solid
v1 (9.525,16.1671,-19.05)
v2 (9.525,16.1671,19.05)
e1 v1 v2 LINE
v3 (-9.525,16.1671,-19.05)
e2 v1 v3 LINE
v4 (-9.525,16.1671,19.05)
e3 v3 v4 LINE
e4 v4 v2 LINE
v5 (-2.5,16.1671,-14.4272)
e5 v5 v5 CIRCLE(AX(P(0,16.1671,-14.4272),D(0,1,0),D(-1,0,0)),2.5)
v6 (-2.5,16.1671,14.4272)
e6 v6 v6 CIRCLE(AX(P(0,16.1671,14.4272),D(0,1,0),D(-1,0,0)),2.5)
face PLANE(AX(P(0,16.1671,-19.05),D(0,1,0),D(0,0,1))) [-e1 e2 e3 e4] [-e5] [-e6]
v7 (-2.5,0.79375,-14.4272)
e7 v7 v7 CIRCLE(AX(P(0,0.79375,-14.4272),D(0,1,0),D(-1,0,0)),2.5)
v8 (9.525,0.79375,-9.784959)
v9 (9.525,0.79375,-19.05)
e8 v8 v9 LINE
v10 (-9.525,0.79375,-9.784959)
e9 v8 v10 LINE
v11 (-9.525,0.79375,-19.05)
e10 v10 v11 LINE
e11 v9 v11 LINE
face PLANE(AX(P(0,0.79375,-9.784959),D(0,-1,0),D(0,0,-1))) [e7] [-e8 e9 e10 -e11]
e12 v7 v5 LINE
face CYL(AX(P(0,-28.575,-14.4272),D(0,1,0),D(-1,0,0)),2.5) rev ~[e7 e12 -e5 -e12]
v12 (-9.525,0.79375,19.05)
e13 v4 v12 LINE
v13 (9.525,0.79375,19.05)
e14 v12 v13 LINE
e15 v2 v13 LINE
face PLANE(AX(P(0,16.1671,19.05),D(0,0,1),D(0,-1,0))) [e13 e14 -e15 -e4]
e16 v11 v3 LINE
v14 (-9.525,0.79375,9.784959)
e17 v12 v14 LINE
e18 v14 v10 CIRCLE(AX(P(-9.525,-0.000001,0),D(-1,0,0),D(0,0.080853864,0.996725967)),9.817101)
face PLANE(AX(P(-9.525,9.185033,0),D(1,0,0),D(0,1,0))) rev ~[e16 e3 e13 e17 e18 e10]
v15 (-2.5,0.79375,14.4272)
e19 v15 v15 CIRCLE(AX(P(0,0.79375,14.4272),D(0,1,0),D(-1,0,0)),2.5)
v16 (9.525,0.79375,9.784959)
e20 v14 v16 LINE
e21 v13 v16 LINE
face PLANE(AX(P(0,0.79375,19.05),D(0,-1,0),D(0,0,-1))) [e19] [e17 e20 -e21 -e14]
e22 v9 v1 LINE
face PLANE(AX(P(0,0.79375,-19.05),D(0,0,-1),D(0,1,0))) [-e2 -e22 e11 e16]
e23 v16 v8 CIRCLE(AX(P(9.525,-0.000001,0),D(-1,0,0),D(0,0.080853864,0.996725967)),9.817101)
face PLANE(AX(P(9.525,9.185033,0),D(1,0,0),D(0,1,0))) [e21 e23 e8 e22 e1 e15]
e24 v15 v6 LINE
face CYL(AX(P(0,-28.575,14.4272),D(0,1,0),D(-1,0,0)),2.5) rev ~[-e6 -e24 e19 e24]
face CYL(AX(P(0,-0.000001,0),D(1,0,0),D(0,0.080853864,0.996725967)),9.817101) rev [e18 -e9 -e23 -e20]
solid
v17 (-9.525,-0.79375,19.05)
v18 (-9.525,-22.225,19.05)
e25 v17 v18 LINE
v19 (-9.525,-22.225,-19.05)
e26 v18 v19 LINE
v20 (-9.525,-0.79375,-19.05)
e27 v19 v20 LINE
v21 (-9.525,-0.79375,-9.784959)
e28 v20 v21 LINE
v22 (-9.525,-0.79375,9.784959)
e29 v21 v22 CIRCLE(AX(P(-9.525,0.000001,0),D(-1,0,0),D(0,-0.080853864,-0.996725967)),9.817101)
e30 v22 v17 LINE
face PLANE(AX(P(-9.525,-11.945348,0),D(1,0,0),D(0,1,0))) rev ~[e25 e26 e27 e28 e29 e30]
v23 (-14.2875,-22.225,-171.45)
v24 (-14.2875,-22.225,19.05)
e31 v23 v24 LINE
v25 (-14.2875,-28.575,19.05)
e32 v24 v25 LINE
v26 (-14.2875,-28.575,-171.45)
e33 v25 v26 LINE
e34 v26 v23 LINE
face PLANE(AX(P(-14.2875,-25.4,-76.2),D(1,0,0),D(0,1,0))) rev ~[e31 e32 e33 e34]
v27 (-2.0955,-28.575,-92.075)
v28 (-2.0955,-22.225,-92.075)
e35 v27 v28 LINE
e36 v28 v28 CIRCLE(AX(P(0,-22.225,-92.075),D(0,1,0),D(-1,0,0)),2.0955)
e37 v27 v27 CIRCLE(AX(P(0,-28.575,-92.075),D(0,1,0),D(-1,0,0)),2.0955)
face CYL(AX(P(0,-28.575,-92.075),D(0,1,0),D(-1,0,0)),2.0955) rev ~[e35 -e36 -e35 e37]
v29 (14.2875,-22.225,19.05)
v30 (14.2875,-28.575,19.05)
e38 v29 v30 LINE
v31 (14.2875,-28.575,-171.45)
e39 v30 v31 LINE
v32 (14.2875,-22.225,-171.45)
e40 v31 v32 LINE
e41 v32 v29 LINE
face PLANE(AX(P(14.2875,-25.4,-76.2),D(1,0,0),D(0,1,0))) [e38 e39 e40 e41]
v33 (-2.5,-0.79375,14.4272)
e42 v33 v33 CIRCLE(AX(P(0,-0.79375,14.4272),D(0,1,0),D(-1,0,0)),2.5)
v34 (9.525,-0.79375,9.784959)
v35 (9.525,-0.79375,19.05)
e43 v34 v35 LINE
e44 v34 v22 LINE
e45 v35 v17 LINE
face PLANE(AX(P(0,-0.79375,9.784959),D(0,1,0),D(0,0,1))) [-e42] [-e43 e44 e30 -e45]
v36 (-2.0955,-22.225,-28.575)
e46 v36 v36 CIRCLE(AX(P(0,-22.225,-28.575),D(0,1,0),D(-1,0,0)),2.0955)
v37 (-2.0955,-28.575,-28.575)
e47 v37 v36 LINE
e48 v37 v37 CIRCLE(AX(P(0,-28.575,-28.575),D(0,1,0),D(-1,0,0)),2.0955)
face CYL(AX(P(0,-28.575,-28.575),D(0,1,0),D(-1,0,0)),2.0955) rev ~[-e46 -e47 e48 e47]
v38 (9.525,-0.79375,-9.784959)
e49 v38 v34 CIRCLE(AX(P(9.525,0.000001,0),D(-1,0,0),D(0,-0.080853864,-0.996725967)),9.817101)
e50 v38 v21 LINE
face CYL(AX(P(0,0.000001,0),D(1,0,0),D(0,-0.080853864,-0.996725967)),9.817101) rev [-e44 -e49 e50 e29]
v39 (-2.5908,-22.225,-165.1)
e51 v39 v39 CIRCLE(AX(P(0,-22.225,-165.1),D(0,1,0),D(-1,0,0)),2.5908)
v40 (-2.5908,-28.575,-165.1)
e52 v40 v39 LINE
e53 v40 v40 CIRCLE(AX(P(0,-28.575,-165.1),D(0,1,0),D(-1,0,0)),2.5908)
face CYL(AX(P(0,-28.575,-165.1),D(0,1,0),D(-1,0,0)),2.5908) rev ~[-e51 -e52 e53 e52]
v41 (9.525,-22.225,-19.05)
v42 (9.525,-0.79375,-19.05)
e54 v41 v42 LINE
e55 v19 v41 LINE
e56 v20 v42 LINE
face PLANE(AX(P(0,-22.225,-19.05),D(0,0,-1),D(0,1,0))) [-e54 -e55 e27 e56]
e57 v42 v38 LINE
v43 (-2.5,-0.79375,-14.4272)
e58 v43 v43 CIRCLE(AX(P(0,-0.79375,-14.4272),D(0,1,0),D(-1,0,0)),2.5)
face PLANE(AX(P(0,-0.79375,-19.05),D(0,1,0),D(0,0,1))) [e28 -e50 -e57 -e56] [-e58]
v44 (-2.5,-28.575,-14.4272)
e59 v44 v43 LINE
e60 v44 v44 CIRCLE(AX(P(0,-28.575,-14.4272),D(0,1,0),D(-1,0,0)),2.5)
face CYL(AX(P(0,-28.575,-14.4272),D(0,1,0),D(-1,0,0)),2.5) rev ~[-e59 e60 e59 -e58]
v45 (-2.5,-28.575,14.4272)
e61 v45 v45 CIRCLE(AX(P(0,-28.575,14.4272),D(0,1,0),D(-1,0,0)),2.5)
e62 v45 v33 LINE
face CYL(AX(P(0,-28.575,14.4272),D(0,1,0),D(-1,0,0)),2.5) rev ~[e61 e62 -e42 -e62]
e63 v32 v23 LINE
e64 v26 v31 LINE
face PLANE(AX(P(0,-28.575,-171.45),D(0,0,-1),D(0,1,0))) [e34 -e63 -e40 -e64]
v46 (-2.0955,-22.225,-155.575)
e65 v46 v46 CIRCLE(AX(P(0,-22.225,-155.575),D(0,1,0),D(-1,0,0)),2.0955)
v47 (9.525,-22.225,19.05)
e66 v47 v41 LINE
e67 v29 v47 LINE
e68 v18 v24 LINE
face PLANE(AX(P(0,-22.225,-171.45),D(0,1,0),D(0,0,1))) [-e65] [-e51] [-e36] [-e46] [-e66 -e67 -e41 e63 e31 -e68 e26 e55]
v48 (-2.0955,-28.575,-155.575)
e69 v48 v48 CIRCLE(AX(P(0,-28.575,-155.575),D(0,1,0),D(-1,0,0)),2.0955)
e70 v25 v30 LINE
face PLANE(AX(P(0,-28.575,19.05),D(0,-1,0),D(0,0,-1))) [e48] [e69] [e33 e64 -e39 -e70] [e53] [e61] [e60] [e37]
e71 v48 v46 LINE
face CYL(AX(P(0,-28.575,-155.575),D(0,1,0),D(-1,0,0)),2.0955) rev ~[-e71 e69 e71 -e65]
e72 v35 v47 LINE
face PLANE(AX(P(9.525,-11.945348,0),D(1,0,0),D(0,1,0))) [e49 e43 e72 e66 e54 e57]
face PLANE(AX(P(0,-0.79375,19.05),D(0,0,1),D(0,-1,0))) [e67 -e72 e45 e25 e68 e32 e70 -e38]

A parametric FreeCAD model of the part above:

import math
import FreeCAD as App
import Part
import Sketcher

V = App.Vector
Q = App.Units.Quantity

doc = App.newDocument("Part")
body = doc.addObject("PartDesign::Body", "Body")
body.AllowCompound = True

sketch1 = doc.addObject("Sketcher::SketchObject", "Sketch")
body.addObject(sketch1)
sketch1.AttachmentSupport = (doc.YZ_Plane, [""])
sketch1.MapMode = "FlatFace"
sketch1.addGeometry([
    Part.LineSegment(V(-22, 19, 0), V(-29, 19, 0)),
    Part.LineSegment(V(-29, 19, 0), V(-29, -171, 0)),
    Part.LineSegment(V(-29, -171, 0), V(-22, -171, 0)),
    Part.LineSegment(V(-22, -171, 0), V(-22, 19, 0)),
], False)
sketch1.addConstraint([
    Sketcher.Constraint("Coincident", 0, 2, 1, 1),
    Sketcher.Constraint("Coincident", 1, 2, 2, 1),
    Sketcher.Constraint("Coincident", 2, 2, 3, 1),
    Sketcher.Constraint("Coincident", 3, 2, 0, 1),
    Sketcher.Constraint("Horizontal", 0),
    Sketcher.Constraint("Vertical", 1),
    Sketcher.Constraint("Horizontal", 2),
    Sketcher.Constraint("Vertical", 3),
    Sketcher.Constraint("DistanceY", 1, 2, 1, 1, Q("7.5 in")),
    Sketcher.Constraint("DistanceX", 0, 2, 0, 1, Q("0.25 in")),
    Sketcher.Constraint("DistanceY", -1, 1, 0, 2, Q("0.75 in")),
    Sketcher.Constraint("DistanceX", 0, 2, -1, 1, Q("1.125 in")),
])
pad1 = doc.addObject("PartDesign::Pad", "Pad")
body.addObject(pad1)
pad1.Profile = sketch1
pad1.Type = "TwoLengths"
pad1.Length = Q("0.5625 in")
pad1.Length2 = Q("0.5625 in")

sketch2 = doc.addObject("Sketcher::SketchObject", "Sketch001")
body.addObject(sketch2)
sketch2.AttachmentSupport = (doc.YZ_Plane, [""])
sketch2.MapMode = "FlatFace"
sketch2.addGeometry([
    Part.LineSegment(V(-1, 19, 0), V(-22, 19, 0)),
    Part.LineSegment(V(-22, 19, 0), V(-22, -19, 0)),
    Part.LineSegment(V(-22, -19, 0), V(-1, -19, 0)),
    Part.LineSegment(V(-1, -19, 0), V(-1, -10, 0)),
    Part.ArcOfCircle(Part.Circle(V(0, 0, 0), V(0, 0, 1), 10), math.radians(95), math.radians(265)),
    Part.LineSegment(V(-1, 10, 0), V(-1, 19, 0)),
    Part.LineSegment(V(16, -19, 0), V(16, 19, 0)),
    Part.LineSegment(V(16, 19, 0), V(1, 19, 0)),
    Part.LineSegment(V(1, 19, 0), V(1, 10, 0)),
    Part.ArcOfCircle(Part.Circle(V(0, 0, 0), V(0, 0, 1), 10), math.radians(-85), math.radians(85)),
    Part.LineSegment(V(1, -10, 0), V(1, -19, 0)),
    Part.LineSegment(V(1, -19, 0), V(16, -19, 0)),
], False)
sketch2.addConstraint([
    Sketcher.Constraint("Coincident", 0, 2, 1, 1),
    Sketcher.Constraint("Coincident", 1, 2, 2, 1),
    Sketcher.Constraint("Coincident", 2, 2, 3, 1),
    Sketcher.Constraint("Coincident", 3, 2, 4, 2),
    Sketcher.Constraint("Coincident", 4, 1, 5, 1),
    Sketcher.Constraint("Coincident", 5, 2, 0, 1),
    Sketcher.Constraint("Coincident", 6, 2, 7, 1),
    Sketcher.Constraint("Coincident", 7, 2, 8, 1),
    Sketcher.Constraint("Coincident", 8, 2, 9, 2),
    Sketcher.Constraint("Coincident", 9, 1, 10, 1),
    Sketcher.Constraint("Coincident", 10, 2, 11, 1),
    Sketcher.Constraint("Coincident", 11, 2, 6, 1),
    Sketcher.Constraint("Horizontal", 0),
    Sketcher.Constraint("Vertical", 1),
    Sketcher.Constraint("Horizontal", 2),
    Sketcher.Constraint("Vertical", 3),
    Sketcher.Constraint("Vertical", 5),
    Sketcher.Constraint("Vertical", 6),
    Sketcher.Constraint("Horizontal", 7),
    Sketcher.Constraint("Vertical", 8),
    Sketcher.Constraint("Vertical", 10),
    Sketcher.Constraint("Horizontal", 11),
    Sketcher.Constraint("Coincident", 4, 3, -1, 1),
    Sketcher.Constraint("Coincident", 9, 3, -1, 1),
    Sketcher.Constraint("Equal", 4, 9),
    Sketcher.Constraint("Symmetric", 2, 2, 7, 2, -1, 1),
    Sketcher.Constraint("Symmetric", 5, 2, 10, 2, -1, 1),
    Sketcher.Constraint("Symmetric", 5, 2, 7, 2, -2),
    Sketcher.Constraint("DistanceY", 1, 2, 1, 1, Q("1.5 in")),
    Sketcher.Constraint("Radius", 4, Q("0.3865 in")),
    Sketcher.Constraint("DistanceX", 0, 2, 0, 1, Q("0.84375 in")),
    Sketcher.Constraint("DistanceX", 0, 2, -1, 1, Q("0.875 in")),
    Sketcher.Constraint("DistanceX", -1, 1, 6, 2, Q("0.6365 in")),
])
pad2 = doc.addObject("PartDesign::Pad", "Pad001")
body.addObject(pad2)
pad2.Profile = sketch2
pad2.Type = "TwoLengths"
pad2.Length = Q("0.375 in")
pad2.Length2 = Q("0.375 in")

sketch3 = doc.addObject("Sketcher::SketchObject", "Sketch002")
body.addObject(sketch3)
sketch3.AttachmentSupport = (doc.XZ_Plane, [""])
sketch3.MapMode = "FlatFace"
sketch3.AttachmentOffset = App.Placement(V(0, 0, 1.125 * 25.4), App.Rotation())
sketch3.addGeometry([
    Part.Circle(V(0, 14.4, 0), V(0, 0, 1), 2.5),
    Part.Circle(V(0, -14.4, 0), V(0, 0, 1), 2.5),
], False)
sketch3.addConstraint([
    Sketcher.Constraint("Equal", 0, 1),
    Sketcher.Constraint("Symmetric", 0, 3, 1, 3, -1, 1),
    Sketcher.Constraint("PointOnObject", 0, 3, -2),
    Sketcher.Constraint("Diameter", 0, 5.0),
    Sketcher.Constraint("DistanceY", -1, 1, 0, 3, Q("0.568 in")),
])
doc.recompute()
hole = doc.addObject("PartDesign::Hole", "Hole")
body.addObject(hole)
hole.Profile = sketch3
hole.ThreadType = "None"
hole.Diameter = 5
hole.DepthType = "Dimension"
hole.Depth = Q("3 in")
hole.DrillPoint = "Flat"
hole.HoleCutType = "Counterbore"
hole.HoleCutDiameter = 11.25
hole.HoleCutDepth = Q("0 in")

sketch4 = doc.addObject("Sketcher::SketchObject", "Sketch003")
body.addObject(sketch4)
sketch4.AttachmentSupport = (doc.XZ_Plane, [""])
sketch4.MapMode = "FlatFace"
sketch4.AttachmentOffset = App.Placement(V(0, 0, 1.125 * 25.4), App.Rotation())
sketch4.addGeometry([
    Part.Circle(V(0, -28.6, 0), V(0, 0, 1), 2.1),
    Part.Circle(V(0, -92.1, 0), V(0, 0, 1), 2.1),
    Part.Circle(V(0, -155.6, 0), V(0, 0, 1), 2.1),
], False)
sketch4.addConstraint([
    Sketcher.Constraint("Equal", 0, 1),
    Sketcher.Constraint("Equal", 1, 2),
    Sketcher.Constraint("PointOnObject", 0, 3, -2),
    Sketcher.Constraint("PointOnObject", 1, 3, -2),
    Sketcher.Constraint("PointOnObject", 2, 3, -2),
    Sketcher.Constraint("Diameter", 0, Q("0.165 in")),
    Sketcher.Constraint("DistanceY", 2, 3, 0, 3, Q("5 in")),
    Sketcher.Constraint("DistanceY", 1, 3, 0, 3, Q("2.5 in")),
    Sketcher.Constraint("DistanceY", 0, 3, -1, 1, Q("1.125 in")),
])
doc.recompute()
hole2 = doc.addObject("PartDesign::Hole", "Hole001")
body.addObject(hole2)
hole2.Profile = sketch4
hole2.ThreadType = "None"
hole2.Diameter = Q("0.165 in")
hole2.DepthType = "Dimension"
hole2.Depth = Q("3 in")
hole2.DrillPoint = "Flat"
hole2.HoleCutType = "Counterbore"
hole2.HoleCutDiameter = 11.25
hole2.HoleCutDepth = Q("0 in")

sketch5 = doc.addObject("Sketcher::SketchObject", "Sketch004")
body.addObject(sketch5)
sketch5.AttachmentSupport = (doc.XZ_Plane, [""])
sketch5.MapMode = "FlatFace"
sketch5.AttachmentOffset = App.Placement(V(0, 0, 1.125 * 25.4), App.Rotation())
sketch5.addGeometry(Part.Circle(V(0, -165.1, 0), V(0, 0, 1), 2.6), False)
sketch5.addConstraint([
    Sketcher.Constraint("PointOnObject", 0, 3, -2),
    Sketcher.Constraint("Diameter", 0, Q("0.204 in")),
    Sketcher.Constraint("DistanceY", 0, 3, -1, 1, Q("6.5 in")),
])
doc.recompute()
hole3 = doc.addObject("PartDesign::Hole", "Hole002")
body.addObject(hole3)
hole3.Profile = sketch5
hole3.ThreadType = "None"
hole3.Diameter = Q("0.204 in")
hole3.DepthType = "Dimension"
hole3.Depth = Q("3 in")
hole3.DrillPoint = "Flat"
hole3.HoleCutType = "Counterbore"
hole3.HoleCutDiameter = 11.25
hole3.HoleCutDepth = Q("0 in")

doc.recompute()
